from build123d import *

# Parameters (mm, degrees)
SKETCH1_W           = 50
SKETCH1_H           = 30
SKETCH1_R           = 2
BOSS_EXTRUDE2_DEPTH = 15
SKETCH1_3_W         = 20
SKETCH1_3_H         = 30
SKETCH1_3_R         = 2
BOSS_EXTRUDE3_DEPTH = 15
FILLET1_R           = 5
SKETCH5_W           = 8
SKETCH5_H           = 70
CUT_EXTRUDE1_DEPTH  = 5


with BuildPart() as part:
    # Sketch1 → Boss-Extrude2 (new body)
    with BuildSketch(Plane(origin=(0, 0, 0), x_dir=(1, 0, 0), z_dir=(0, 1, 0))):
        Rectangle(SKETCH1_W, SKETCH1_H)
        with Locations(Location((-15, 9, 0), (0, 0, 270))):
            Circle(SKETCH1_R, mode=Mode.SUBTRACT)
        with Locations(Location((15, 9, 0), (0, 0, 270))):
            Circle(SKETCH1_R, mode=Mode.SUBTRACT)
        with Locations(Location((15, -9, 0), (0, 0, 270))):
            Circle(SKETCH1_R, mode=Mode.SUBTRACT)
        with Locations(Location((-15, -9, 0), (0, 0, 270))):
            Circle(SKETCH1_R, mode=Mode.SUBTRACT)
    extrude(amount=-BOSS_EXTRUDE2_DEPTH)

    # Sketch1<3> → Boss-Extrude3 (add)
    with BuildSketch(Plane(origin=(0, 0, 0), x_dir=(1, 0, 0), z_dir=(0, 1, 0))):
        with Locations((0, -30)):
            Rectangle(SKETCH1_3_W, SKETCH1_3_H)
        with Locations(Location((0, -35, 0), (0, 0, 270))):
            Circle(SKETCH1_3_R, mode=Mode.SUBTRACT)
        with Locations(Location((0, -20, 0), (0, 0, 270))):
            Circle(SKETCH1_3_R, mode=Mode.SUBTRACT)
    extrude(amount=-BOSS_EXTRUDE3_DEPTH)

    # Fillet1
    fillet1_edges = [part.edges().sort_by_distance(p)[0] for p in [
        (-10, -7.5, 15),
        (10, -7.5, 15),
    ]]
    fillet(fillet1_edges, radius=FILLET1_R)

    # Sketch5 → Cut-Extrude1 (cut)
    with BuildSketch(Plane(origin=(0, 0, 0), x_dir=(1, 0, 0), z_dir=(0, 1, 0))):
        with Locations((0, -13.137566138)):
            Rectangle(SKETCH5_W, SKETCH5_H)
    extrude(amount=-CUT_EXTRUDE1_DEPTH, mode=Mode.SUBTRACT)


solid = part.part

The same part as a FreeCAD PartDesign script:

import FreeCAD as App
import Part
import Sketcher
from FreeCAD import Vector
Q = App.Units.Quantity


def edges_at(feature, points):
    """Names of the edges that pass closest to the given points."""
    edges = feature.Shape.Edges
    near = lambda p: min(range(len(edges)), key=lambda i: edges[i].distToShape(Part.Vertex(*p))[0])
    return sorted({f"Edge{near(p) + 1}" for p in points})

doc = App.newDocument("Part")
body = doc.addObject("PartDesign::Body", "Body")

# Sketch on XZ plane
sketch1 = body.newObject("Sketcher::SketchObject", "Sketch")
sketch1.AttachmentSupport = (doc.getObject("XZ_Plane"), [""])
sketch1.MapMode = "FlatFace"
sketch1.addGeometry([
    Part.LineSegment(Vector(-25, -15, 0), Vector(-25, 15, 0)),  # 0
    Part.LineSegment(Vector(-25, 15, 0), Vector(25, 15, 0)),  # 1
    Part.LineSegment(Vector(25, 15, 0), Vector(25, -15, 0)),  # 2
    Part.LineSegment(Vector(25, -15, 0), Vector(-25, -15, 0)),  # 3
    Part.Circle(Vector(-15, 9, 0), Vector(0, 0, 1), 2),  # 4
    Part.Circle(Vector(15, 9, 0), Vector(0, 0, 1), 2),  # 5
    Part.Circle(Vector(-15, -9, 0), Vector(0, 0, 1), 2),  # 6
    Part.Circle(Vector(15, -9, 0), Vector(0, 0, 1), 2),  # 7
], False)
sketch1.addConstraint([
    Sketcher.Constraint("Coincident", 0, 2, 1, 1),
    Sketcher.Constraint("Coincident", 1, 2, 2, 1),
    Sketcher.Constraint("Coincident", 2, 2, 3, 1),
    Sketcher.Constraint("Coincident", 3, 2, 0, 1),
    Sketcher.Constraint("Vertical", 0),
    Sketcher.Constraint("Horizontal", 1),
    Sketcher.Constraint("Vertical", 2),
    Sketcher.Constraint("Horizontal", 3),
    Sketcher.Constraint("Equal", 4, 5),
    Sketcher.Constraint("Equal", 5, 6),
    Sketcher.Constraint("Equal", 6, 7),
    Sketcher.Constraint("Symmetric", 5, 3, 6, 3, -1, 1),
    Sketcher.Constraint("Symmetric", 4, 3, 7, 3, -1, 1),
    Sketcher.Constraint("Symmetric", 0, 2, 2, 2, -1, 1),
    Sketcher.Constraint("Symmetric", 4, 3, 5, 3, -2),
    Sketcher.Constraint("Diameter", 4, Q("4 mm")),
    Sketcher.Constraint("DistanceX", 1, 1, 1, 2, Q("50 mm")),
    Sketcher.Constraint("DistanceY", 0, 1, 0, 2, Q("30 mm")),
    Sketcher.Constraint("DistanceX", 4, 3, -1, 1, Q("15 mm")),
    Sketcher.Constraint("DistanceY", -1, 1, 4, 3, Q("9 mm")),
])
pad1 = body.newObject("PartDesign::Pad", "Pad")
pad1.Profile = sketch1
pad1.Length = 15

# Sketch on XZ plane
sketch2 = body.newObject("Sketcher::SketchObject", "Sketch001")
sketch2.AttachmentSupport = (doc.getObject("XZ_Plane"), [""])
sketch2.MapMode = "FlatFace"
sketch2.addGeometry([
    Part.LineSegment(Vector(-10, 15, 0), Vector(-10, 45, 0)),  # 0
    Part.LineSegment(Vector(-10, 45, 0), Vector(10, 45, 0)),  # 1
    Part.LineSegment(Vector(10, 45, 0), Vector(10, 15, 0)),  # 2
    Part.LineSegment(Vector(10, 15, 0), Vector(-10, 15, 0)),  # 3
    Part.Circle(Vector(0, 35, 0), Vector(0, 0, 1), 2),  # 4
    Part.Circle(Vector(0, 20, 0), Vector(0, 0, 1), 2),  # 5
], False)
sketch2.addConstraint([
    Sketcher.Constraint("Coincident", 0, 2, 1, 1),
    Sketcher.Constraint("Coincident", 1, 2, 2, 1),
    Sketcher.Constraint("Coincident", 2, 2, 3, 1),
    Sketcher.Constraint("Coincident", 3, 2, 0, 1),
    Sketcher.Constraint("Vertical", 0),
    Sketcher.Constraint("Horizontal", 1),
    Sketcher.Constraint("Vertical", 2),
    Sketcher.Constraint("Horizontal", 3),
    Sketcher.Constraint("Equal", 4, 5),
    Sketcher.Constraint("PointOnObject", 4, 3, -2),
    Sketcher.Constraint("PointOnObject", 5, 3, -2),
    Sketcher.Constraint("Diameter", 4, Q("4 mm")),
    Sketcher.Constraint("DistanceX", 1, 1, 1, 2, Q("20 mm")),
    Sketcher.Constraint("DistanceY", 0, 1, 0, 2, Q("30 mm")),
    Sketcher.Constraint("DistanceY", -1, 1, 4, 3, Q("35 mm")),
    Sketcher.Constraint("DistanceY", -1, 1, 5, 3, Q("20 mm")),
    Sketcher.Constraint("DistanceX", 0, 2, -1, 1, Q("10 mm")),
    Sketcher.Constraint("DistanceY", -1, 1, 0, 2, Q("45 mm")),
])
pad2 = body.newObject("PartDesign::Pad", "Pad001")
pad2.Profile = sketch2
pad2.Length = 15
doc.recompute()

fillet = body.newObject("PartDesign::Fillet", "Fillet")
fillet.Base = (pad2, edges_at(pad2, [(-10, -7.5, 15), (10, -7.5, 15)]))
fillet.Radius = 5

# Sketch on XZ plane
sketch3 = body.newObject("Sketcher::SketchObject", "Sketch002")
sketch3.AttachmentSupport = (doc.getObject("XZ_Plane"), [""])
sketch3.MapMode = "FlatFace"
sketch3.addGeometry([
    Part.LineSegment(Vector(-4, -21.862434, 0), Vector(-4, 48.137566, 0)),
    Part.LineSegment(Vector(-4, 48.137566, 0), Vector(4, 48.137566, 0)),
    Part.LineSegment(Vector(4, 48.137566, 0), Vector(4, -21.862434, 0)),
    Part.LineSegment(Vector(4, -21.862434, 0), Vector(-4, -21.862434, 0)),
], False)
sketch3.addConstraint([
    Sketcher.Constraint("Coincident", 0, 2, 1, 1),
    Sketcher.Constraint("Coincident", 1, 2, 2, 1),
    Sketcher.Constraint("Coincident", 2, 2, 3, 1),
    Sketcher.Constraint("Coincident", 3, 2, 0, 1),
    Sketcher.Constraint("Vertical", 0),
    Sketcher.Constraint("Horizontal", 1),
    Sketcher.Constraint("Vertical", 2),
    Sketcher.Constraint("Horizontal", 3),
    Sketcher.Constraint("DistanceX", 1, 1, 1, 2, Q("8 mm")),
    Sketcher.Constraint("DistanceY", 0, 1, 0, 2, Q("70 mm")),
    Sketcher.Constraint("DistanceX", 0, 2, -1, 1, Q("4 mm")),
    Sketcher.Constraint("DistanceY", -1, 1, 0, 2, Q("48.137566 mm")),
])
pocket1 = body.newObject("PartDesign::Pocket", "Pocket")
pocket1.Profile = sketch3
pocket1.Length = 5
pocket1.Reversed = True

doc.recompute()
